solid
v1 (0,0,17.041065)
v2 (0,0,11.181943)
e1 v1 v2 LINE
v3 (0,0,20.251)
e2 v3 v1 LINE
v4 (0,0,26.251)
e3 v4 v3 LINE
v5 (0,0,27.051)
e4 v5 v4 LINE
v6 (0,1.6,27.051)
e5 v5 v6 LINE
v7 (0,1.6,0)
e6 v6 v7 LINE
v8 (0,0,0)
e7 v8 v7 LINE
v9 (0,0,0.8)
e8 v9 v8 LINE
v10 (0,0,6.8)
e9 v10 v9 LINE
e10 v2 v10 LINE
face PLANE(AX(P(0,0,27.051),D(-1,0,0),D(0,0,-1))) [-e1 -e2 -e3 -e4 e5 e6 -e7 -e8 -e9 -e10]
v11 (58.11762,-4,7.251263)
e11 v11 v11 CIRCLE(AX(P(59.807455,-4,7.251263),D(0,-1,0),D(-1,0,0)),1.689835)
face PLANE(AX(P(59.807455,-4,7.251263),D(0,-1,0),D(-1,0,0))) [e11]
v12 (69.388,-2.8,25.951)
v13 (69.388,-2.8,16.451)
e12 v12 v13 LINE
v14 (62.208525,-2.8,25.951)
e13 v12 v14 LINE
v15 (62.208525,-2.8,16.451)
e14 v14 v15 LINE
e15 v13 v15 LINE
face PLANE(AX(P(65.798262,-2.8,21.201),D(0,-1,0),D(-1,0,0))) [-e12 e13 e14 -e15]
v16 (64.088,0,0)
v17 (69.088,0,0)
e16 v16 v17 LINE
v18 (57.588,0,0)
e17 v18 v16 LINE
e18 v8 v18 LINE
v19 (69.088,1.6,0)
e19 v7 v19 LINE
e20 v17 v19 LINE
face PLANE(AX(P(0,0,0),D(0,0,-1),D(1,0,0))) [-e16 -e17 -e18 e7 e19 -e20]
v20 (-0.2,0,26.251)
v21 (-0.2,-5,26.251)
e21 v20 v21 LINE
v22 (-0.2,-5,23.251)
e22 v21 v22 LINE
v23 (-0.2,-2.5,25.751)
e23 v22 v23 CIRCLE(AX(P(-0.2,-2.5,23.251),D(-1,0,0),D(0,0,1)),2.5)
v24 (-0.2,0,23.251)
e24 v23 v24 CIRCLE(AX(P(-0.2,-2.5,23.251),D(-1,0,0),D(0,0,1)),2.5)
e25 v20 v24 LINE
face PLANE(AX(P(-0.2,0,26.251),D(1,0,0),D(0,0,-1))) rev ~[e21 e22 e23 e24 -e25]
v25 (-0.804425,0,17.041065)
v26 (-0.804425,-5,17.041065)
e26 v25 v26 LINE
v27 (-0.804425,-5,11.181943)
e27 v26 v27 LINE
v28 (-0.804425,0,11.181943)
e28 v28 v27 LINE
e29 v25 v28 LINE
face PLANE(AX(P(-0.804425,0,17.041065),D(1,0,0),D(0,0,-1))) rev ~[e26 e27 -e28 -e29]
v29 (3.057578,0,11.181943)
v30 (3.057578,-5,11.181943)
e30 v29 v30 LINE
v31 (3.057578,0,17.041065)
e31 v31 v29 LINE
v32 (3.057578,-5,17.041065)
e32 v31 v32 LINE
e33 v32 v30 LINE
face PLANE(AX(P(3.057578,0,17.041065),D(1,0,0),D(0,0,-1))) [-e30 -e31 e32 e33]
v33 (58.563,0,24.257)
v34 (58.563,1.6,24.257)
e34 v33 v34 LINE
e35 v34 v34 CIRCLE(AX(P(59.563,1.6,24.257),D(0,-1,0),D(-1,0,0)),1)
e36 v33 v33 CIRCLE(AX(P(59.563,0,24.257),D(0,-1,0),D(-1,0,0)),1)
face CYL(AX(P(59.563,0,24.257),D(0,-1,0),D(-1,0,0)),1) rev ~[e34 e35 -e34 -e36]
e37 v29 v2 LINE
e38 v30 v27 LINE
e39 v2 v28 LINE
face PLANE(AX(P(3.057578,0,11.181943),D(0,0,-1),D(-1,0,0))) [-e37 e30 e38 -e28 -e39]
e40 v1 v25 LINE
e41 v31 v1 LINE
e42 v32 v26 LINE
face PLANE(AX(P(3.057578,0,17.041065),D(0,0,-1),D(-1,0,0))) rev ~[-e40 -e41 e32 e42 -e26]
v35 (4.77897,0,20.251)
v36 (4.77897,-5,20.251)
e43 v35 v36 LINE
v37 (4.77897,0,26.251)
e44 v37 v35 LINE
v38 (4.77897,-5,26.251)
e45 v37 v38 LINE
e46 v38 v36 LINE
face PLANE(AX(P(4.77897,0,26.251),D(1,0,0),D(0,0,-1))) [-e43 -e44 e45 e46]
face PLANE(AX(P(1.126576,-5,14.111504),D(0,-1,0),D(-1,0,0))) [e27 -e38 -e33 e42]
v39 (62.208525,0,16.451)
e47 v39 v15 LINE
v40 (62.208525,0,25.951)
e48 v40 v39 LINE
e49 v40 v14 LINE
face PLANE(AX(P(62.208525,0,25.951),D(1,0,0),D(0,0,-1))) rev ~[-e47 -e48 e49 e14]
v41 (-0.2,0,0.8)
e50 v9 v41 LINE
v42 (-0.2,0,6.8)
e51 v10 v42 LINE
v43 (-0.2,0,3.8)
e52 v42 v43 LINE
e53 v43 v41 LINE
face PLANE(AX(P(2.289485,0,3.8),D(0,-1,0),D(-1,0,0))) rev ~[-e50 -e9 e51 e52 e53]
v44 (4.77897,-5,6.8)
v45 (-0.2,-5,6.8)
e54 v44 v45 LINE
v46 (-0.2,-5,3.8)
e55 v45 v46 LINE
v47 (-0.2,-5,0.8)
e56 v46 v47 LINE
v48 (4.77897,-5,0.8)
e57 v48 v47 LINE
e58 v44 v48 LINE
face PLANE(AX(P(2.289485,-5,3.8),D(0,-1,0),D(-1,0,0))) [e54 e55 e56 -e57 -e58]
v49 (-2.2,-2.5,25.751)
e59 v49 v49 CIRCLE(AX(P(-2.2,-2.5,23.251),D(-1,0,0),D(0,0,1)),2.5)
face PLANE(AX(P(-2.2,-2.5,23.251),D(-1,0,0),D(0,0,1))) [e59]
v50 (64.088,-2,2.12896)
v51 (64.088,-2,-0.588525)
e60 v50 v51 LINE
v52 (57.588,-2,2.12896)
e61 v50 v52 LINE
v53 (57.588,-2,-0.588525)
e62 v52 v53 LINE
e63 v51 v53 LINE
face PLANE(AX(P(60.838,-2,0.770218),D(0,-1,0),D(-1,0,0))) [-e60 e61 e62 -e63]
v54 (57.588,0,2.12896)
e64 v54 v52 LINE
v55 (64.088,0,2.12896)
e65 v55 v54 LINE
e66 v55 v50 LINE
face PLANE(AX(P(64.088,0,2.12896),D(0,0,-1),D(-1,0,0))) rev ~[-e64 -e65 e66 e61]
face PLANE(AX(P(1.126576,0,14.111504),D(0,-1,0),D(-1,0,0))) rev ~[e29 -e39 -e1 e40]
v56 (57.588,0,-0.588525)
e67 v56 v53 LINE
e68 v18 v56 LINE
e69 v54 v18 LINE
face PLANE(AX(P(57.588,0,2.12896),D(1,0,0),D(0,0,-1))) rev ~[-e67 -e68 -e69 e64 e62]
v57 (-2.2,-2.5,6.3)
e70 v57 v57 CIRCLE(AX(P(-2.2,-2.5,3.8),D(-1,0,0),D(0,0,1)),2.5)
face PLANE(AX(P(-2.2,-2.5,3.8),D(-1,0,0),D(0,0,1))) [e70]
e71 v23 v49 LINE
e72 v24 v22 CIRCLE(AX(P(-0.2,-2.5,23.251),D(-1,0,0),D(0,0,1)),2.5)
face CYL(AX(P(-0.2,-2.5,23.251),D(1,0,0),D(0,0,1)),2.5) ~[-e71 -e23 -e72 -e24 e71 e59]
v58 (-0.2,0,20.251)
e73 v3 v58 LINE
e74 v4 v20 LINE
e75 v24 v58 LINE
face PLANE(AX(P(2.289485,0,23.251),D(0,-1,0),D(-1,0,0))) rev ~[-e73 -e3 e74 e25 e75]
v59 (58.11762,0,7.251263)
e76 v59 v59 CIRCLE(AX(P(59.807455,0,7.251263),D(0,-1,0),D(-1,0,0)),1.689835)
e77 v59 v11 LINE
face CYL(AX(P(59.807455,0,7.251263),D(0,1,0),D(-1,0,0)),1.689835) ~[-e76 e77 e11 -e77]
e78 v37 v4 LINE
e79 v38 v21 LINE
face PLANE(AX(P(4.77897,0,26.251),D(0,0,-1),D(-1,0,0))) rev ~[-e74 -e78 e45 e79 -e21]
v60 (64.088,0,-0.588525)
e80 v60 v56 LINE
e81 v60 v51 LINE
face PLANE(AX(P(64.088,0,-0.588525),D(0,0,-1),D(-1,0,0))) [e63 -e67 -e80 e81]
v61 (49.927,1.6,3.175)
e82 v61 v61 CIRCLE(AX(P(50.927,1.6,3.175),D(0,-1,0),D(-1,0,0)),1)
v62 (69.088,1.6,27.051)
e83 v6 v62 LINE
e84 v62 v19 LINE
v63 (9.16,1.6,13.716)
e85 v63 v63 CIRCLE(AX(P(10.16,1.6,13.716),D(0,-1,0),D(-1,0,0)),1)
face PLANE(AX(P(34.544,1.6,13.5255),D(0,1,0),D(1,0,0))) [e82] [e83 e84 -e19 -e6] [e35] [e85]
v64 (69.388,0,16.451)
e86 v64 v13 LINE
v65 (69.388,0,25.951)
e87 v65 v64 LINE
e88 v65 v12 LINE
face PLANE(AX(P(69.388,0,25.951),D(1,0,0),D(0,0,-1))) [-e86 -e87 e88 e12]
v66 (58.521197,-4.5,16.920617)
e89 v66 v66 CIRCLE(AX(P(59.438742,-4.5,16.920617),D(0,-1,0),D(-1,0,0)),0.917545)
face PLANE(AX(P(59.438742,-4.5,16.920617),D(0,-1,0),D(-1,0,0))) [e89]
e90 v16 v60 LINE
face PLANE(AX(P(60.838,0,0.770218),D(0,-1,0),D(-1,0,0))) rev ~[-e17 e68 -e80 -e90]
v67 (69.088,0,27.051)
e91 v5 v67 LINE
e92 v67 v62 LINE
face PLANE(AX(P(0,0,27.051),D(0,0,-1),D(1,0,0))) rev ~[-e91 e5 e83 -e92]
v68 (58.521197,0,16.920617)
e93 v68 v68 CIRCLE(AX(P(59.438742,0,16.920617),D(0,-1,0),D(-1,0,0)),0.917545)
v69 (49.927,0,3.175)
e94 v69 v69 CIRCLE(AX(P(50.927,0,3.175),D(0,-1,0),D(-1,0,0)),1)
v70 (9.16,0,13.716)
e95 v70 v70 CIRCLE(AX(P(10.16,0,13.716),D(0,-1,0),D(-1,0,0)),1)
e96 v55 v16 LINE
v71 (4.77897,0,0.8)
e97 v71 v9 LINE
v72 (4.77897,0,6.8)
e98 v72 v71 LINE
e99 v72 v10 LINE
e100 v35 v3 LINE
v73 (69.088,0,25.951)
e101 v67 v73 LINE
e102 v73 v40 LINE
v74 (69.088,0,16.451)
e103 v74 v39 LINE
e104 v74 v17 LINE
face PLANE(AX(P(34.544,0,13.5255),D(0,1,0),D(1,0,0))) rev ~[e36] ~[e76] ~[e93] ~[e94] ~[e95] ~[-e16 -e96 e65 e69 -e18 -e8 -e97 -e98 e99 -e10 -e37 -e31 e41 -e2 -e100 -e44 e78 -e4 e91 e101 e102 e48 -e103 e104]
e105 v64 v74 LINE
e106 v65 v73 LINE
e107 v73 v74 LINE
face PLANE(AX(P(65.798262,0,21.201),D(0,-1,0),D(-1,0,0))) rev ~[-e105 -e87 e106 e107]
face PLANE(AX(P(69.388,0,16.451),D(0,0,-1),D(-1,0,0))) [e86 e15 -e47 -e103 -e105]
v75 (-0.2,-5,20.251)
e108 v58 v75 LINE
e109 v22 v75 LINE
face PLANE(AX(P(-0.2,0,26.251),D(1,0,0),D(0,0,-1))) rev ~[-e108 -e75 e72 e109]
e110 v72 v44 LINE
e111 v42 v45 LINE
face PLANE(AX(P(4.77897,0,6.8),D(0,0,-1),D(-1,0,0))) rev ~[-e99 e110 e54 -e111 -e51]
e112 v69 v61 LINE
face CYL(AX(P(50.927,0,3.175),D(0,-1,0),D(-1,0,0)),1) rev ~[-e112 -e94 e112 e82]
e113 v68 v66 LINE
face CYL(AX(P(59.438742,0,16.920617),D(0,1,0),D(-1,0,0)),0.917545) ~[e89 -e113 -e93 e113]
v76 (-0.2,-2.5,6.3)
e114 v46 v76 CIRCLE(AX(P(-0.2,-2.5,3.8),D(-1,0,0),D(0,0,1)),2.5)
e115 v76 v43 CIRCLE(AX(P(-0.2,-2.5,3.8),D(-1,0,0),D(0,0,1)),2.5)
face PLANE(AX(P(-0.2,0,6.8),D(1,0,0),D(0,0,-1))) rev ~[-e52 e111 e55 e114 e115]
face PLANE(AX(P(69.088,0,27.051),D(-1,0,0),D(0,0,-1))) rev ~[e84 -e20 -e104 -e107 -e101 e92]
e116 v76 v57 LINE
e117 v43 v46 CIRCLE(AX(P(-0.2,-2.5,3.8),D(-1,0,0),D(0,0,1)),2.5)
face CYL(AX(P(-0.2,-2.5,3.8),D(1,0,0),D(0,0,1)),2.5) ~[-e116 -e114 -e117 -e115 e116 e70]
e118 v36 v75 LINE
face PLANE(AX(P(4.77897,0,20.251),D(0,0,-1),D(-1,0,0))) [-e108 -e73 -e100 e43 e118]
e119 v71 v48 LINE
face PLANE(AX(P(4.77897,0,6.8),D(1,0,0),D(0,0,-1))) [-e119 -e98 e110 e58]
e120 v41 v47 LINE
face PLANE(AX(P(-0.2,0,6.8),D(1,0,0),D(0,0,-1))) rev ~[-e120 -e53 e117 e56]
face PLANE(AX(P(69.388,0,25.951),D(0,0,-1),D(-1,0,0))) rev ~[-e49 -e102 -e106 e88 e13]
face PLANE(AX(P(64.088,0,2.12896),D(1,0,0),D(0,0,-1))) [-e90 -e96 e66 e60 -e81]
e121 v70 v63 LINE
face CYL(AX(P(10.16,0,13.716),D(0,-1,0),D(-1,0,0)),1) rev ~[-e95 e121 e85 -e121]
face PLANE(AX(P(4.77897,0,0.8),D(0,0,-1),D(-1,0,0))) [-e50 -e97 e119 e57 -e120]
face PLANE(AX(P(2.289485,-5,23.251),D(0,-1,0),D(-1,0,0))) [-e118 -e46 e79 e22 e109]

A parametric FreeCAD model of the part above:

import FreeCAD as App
import Part
import Sketcher
from FreeCAD import Vector

doc = App.newDocument("Part")
params = doc.addObject("Spreadsheet::Sheet", "Params")
for row, (alias, value) in enumerate([
    ("pad1_length", "1.6 mm"),
    ("sketch2_height", "6 mm"),
    ("pad2_length", "5 mm"),
    ("sketch3_width", "6.5 mm"),
    ("pad3_length", "2 mm"),
    ("sketch4_height", "9.5 mm"),
    ("pad4_length", "2.8 mm"),
    ("sketch5_diameter", "2 mm"),
    ("pad5_length", "4 mm"),
    ("pad6_length", "4.5 mm"),
    ("sketch8_diameter", "5 mm"),
    ("pad7_length", "2 mm"),
], start=1):
    params.set(f"A{row}", alias)
    params.set(f"B{row}", "=" + value)
    params.setAlias(f"B{row}", alias)

body = doc.addObject("PartDesign::Body", "Body")

sketch1 = body.newObject("Sketcher::SketchObject", "Sketch")
sketch1.AttachmentSupport = (doc.getObject("XZ_Plane"), [""])
sketch1.MapMode = "FlatFace"
sketch1.addGeometry([
    Part.LineSegment(Vector(0, 0, 0), Vector(0, 27.051, 0)),
    Part.LineSegment(Vector(0, 27.051, 0), Vector(69.088, 27.051, 0)),
    Part.LineSegment(Vector(69.088, 27.051, 0), Vector(69.088, 0, 0)),
    Part.LineSegment(Vector(69.088, 0, 0), Vector(0, 0, 0)),
], False)
sketch1.addConstraint([
    Sketcher.Constraint("Coincident", 0, 2, 1, 1),
    Sketcher.Constraint("Coincident", 1, 2, 2, 1),
    Sketcher.Constraint("Coincident", 2, 2, 3, 1),
    Sketcher.Constraint("Coincident", 3, 2, 0, 1),
    Sketcher.Constraint("Vertical", 0),
    Sketcher.Constraint("Horizontal", 1),
    Sketcher.Constraint("Vertical", 2),
    Sketcher.Constraint("Horizontal", 3),
    Sketcher.Constraint("Coincident", 3, 2, -1, 1),
    Sketcher.Constraint("DistanceX", 1, 1, 1, 2, 69.088),
    Sketcher.Constraint("DistanceY", 0, 1, 0, 2, 27.051),
])
pad1 = body.newObject("PartDesign::Pad", "Pad")
pad1.Profile = sketch1
pad1.setExpression("Length", "Params.pad1_length")
pad1.Reversed = True

sketch2 = body.newObject("Sketcher::SketchObject", "Sketch001")
sketch2.AttachmentSupport = (doc.getObject("XZ_Plane"), [""])
sketch2.MapMode = "FlatFace"
sketch2.addGeometry([
    Part.LineSegment(Vector(4.77897, 20.251, 0), Vector(4.77897, 26.251, 0)),
    Part.LineSegment(Vector(4.77897, 26.251, 0), Vector(-0.2, 26.251, 0)),
    Part.LineSegment(Vector(-0.2, 26.251, 0), Vector(-0.2, 20.251, 0)),
    Part.LineSegment(Vector(-0.2, 20.251, 0), Vector(4.77897, 20.251, 0)),
    Part.LineSegment(Vector(4.77897, 0.8, 0), Vector(4.77897, 6.8, 0)),
    Part.LineSegment(Vector(4.77897, 6.8, 0), Vector(-0.2, 6.8, 0)),
    Part.LineSegment(Vector(-0.2, 6.8, 0), Vector(-0.2, 0.8, 0)),
    Part.LineSegment(Vector(-0.2, 0.8, 0), Vector(4.77897, 0.8, 0)),
    Part.LineSegment(Vector(3.057578, 11.181943, 0), Vector(3.057578, 17.041065, 0)),
    Part.LineSegment(Vector(3.057578, 17.041065, 0), Vector(-0.804425, 17.041065, 0)),
    Part.LineSegment(Vector(-0.804425, 17.041065, 0), Vector(-0.804425, 11.181943, 0)),
    Part.LineSegment(Vector(-0.804425, 11.181943, 0), Vector(3.057578, 11.181943, 0)),
], False)
sketch2.addConstraint([
    Sketcher.Constraint("Coincident", 0, 2, 1, 1),
    Sketcher.Constraint("Coincident", 1, 2, 2, 1),
    Sketcher.Constraint("Coincident", 2, 2, 3, 1),
    Sketcher.Constraint("Coincident", 3, 2, 0, 1),
    Sketcher.Constraint("Coincident", 4, 2, 5, 1),
    Sketcher.Constraint("Coincident", 5, 2, 6, 1),
    Sketcher.Constraint("Coincident", 6, 2, 7, 1),
    Sketcher.Constraint("Coincident", 7, 2, 4, 1),
    Sketcher.Constraint("Coincident", 8, 2, 9, 1),
    Sketcher.Constraint("Coincident", 9, 2, 10, 1),
    Sketcher.Constraint("Coincident", 10, 2, 11, 1),
    Sketcher.Constraint("Coincident", 11, 2, 8, 1),
    Sketcher.Constraint("Vertical", 0),
    Sketcher.Constraint("Horizontal", 1),
    Sketcher.Constraint("Vertical", 2),
    Sketcher.Constraint("Horizontal", 3),
    Sketcher.Constraint("Vertical", 4),
    Sketcher.Constraint("Horizontal", 5),
    Sketcher.Constraint("Vertical", 6),
    Sketcher.Constraint("Horizontal", 7),
    Sketcher.Constraint("Vertical", 8),
    Sketcher.Constraint("Horizontal", 9),
    Sketcher.Constraint("Vertical", 10),
    Sketcher.Constraint("Horizontal", 11),
    Sketcher.Constraint("Vertical", 3, 2, 4, 2),
    Sketcher.Constraint("Vertical", 2, 2, 5, 2),
    Sketcher.Constraint("Equal", 2, 4),
    Sketcher.Constraint("DistanceY", 0, 1, 0, 2, 6.0),
    Sketcher.Constraint("DistanceX", 1, 2, -1, 1, 0.2),
    Sketcher.Constraint("DistanceY", -1, 1, 4, 2, 6.8),
    Sketcher.Constraint("DistanceY", -1, 1, 0, 2, 26.251),
    Sketcher.Constraint("DistanceX", 1, 2, 1, 1, 4.97897),
    Sketcher.Constraint("DistanceY", 8, 1, 8, 2, 5.859122),
    Sketcher.Constraint("DistanceX", 9, 2, 9, 1, 3.862003),
    Sketcher.Constraint("DistanceX", -1, 1, 8, 2, 3.057578),
    Sketcher.Constraint("DistanceY", -1, 1, 8, 2, 17.041065),
])
sketch2.setExpression("Constraints[27]", "Params.sketch2_height")
pad2 = body.newObject("PartDesign::Pad", "Pad001")
pad2.Profile = sketch2
pad2.setExpression("Length", "Params.pad2_length")

sketch3 = body.newObject("Sketcher::SketchObject", "Sketch002")
sketch3.AttachmentSupport = (doc.getObject("XZ_Plane"), [""])
sketch3.MapMode = "FlatFace"
sketch3.addGeometry([
    Part.LineSegment(Vector(64.088, -0.588525, 0), Vector(64.088, 2.12896, 0)),
    Part.LineSegment(Vector(64.088, 2.12896, 0), Vector(57.588, 2.12896, 0)),
    Part.LineSegment(Vector(57.588, 2.12896, 0), Vector(57.588, -0.588525, 0)),
    Part.LineSegment(Vector(57.588, -0.588525, 0), Vector(64.088, -0.588525, 0)),
], False)
sketch3.addConstraint([
    Sketcher.Constraint("Coincident", 0, 2, 1, 1),
    Sketcher.Constraint("Coincident", 1, 2, 2, 1),
    Sketcher.Constraint("Coincident", 2, 2, 3, 1),
    Sketcher.Constraint("Coincident", 3, 2, 0, 1),
    Sketcher.Constraint("Vertical", 0),
    Sketcher.Constraint("Horizontal", 1),
    Sketcher.Constraint("Vertical", 2),
    Sketcher.Constraint("Horizontal", 3),
    Sketcher.Constraint("DistanceX", 1, 2, 1, 1, 6.5),
    Sketcher.Constraint("DistanceX", -1, 1, 0, 2, 64.088),
    Sketcher.Constraint("DistanceY", 0, 1, 0, 2, 2.717485),
    Sketcher.Constraint("DistanceY", -1, 1, 0, 2, 2.12896),
])
sketch3.setExpression("Constraints[8]", "Params.sketch3_width")
pad3 = body.newObject("PartDesign::Pad", "Pad002")
pad3.Profile = sketch3
pad3.setExpression("Length", "Params.pad3_length")

sketch4 = body.newObject("Sketcher::SketchObject", "Sketch003")
sketch4.AttachmentSupport = (doc.getObject("XZ_Plane"), [""])
sketch4.MapMode = "FlatFace"
sketch4.addGeometry([
    Part.LineSegment(Vector(69.388, 16.451, 0), Vector(69.388, 25.951, 0)),
    Part.LineSegment(Vector(69.388, 25.951, 0), Vector(62.208525, 25.951, 0)),
    Part.LineSegment(Vector(62.208525, 25.951, 0), Vector(62.208525, 16.451, 0)),
    Part.LineSegment(Vector(62.208525, 16.451, 0), Vector(69.388, 16.451, 0)),
], False)
sketch4.addConstraint([
    Sketcher.Constraint("Coincident", 0, 2, 1, 1),
    Sketcher.Constraint("Coincident", 1, 2, 2, 1),
    Sketcher.Constraint("Coincident", 2, 2, 3, 1),
    Sketcher.Constraint("Coincident", 3, 2, 0, 1),
    Sketcher.Constraint("Vertical", 0),
    Sketcher.Constraint("Horizontal", 1),
    Sketcher.Constraint("Vertical", 2),
    Sketcher.Constraint("Horizontal", 3),
    Sketcher.Constraint("DistanceY", 0, 1, 0, 2, 9.5),
    Sketcher.Constraint("DistanceX", -1, 1, 0, 2, 69.388),
    Sketcher.Constraint("DistanceY", -1, 1, 0, 2, 25.951),
    Sketcher.Constraint("DistanceX", 1, 2, 1, 1, 7.179475),
])
sketch4.setExpression("Constraints[8]", "Params.sketch4_height")
pad4 = body.newObject("PartDesign::Pad", "Pad003")
pad4.Profile = sketch4
pad4.setExpression("Length", "Params.pad4_length")

sketch5 = body.newObject("Sketcher::SketchObject", "Sketch004")
sketch5.AttachmentSupport = (doc.getObject("XZ_Plane"), [""])
sketch5.MapMode = "FlatFace"
sketch5.addGeometry([
    Part.Circle(Vector(59.563, 24.257, 0), Vector(0, 0, 1), 1),
    Part.Circle(Vector(50.927, 3.175, 0), Vector(0, 0, 1), 1),
    Part.Circle(Vector(10.16, 13.716, 0), Vector(0, 0, 1), 1),
], False)
sketch5.addConstraint([
    Sketcher.Constraint("Equal", 0, 1),
    Sketcher.Constraint("Equal", 1, 2),
    Sketcher.Constraint("Diameter", 0, 2.0),
    Sketcher.Constraint("DistanceX", -1, 1, 2, 3, 10.16),
    Sketcher.Constraint("DistanceX", -1, 1, 0, 3, 59.563),
    Sketcher.Constraint("DistanceY", -1, 1, 0, 3, 24.257),
    Sketcher.Constraint("DistanceX", -1, 1, 1, 3, 50.927),
    Sketcher.Constraint("DistanceY", -1, 1, 1, 3, 3.175),
    Sketcher.Constraint("DistanceY", -1, 1, 2, 3, 13.716),
])
sketch5.setExpression("Constraints[2]", "Params.sketch5_diameter")
pocket1 = body.newObject("PartDesign::Pocket", "Pocket")
pocket1.Profile = sketch5
pocket1.Type = "ThroughAll"

sketch6 = body.newObject("Sketcher::SketchObject", "Sketch005")
sketch6.AttachmentSupport = (doc.getObject("XZ_Plane"), [""])
sketch6.MapMode = "FlatFace"
sketch6.addGeometry(Part.Circle(Vector(59.807455, 7.251263, 0), Vector(0, 0, 1), 1.689835), False)
sketch6.addConstraint([
    Sketcher.Constraint("Diameter", 0, 3.379669),
    Sketcher.Constraint("DistanceX", -1, 1, 0, 3, 59.807455),
    Sketcher.Constraint("DistanceY", -1, 1, 0, 3, 7.251263),
])
pad5 = body.newObject("PartDesign::Pad", "Pad004")
pad5.Profile = sketch6
pad5.setExpression("Length", "Params.pad5_length")

sketch7 = body.newObject("Sketcher::SketchObject", "Sketch006")
sketch7.AttachmentSupport = (doc.getObject("XZ_Plane"), [""])
sketch7.MapMode = "FlatFace"
sketch7.addGeometry(Part.Circle(Vector(59.438742, 16.920617, 0), Vector(0, 0, 1), 0.917545), False)
sketch7.addConstraint([
    Sketcher.Constraint("Diameter", 0, 1.835091),
    Sketcher.Constraint("DistanceX", -1, 1, 0, 3, 59.438742),
    Sketcher.Constraint("DistanceY", -1, 1, 0, 3, 16.920617),
])
pad6 = body.newObject("PartDesign::Pad", "Pad005")
pad6.Profile = sketch7
pad6.setExpression("Length", "Params.pad6_length")

sketch8 = body.newObject("Sketcher::SketchObject", "Sketch007")
sketch8.AttachmentSupport = (doc.getObject("YZ_Plane"), [""])
sketch8.MapMode = "FlatFace"
sketch8.AttachmentOffset = App.Placement(Vector(0, 0, -0.2), App.Rotation())
sketch8.addGeometry([
    Part.Circle(Vector(-2.5, 3.8, 0), Vector(0, 0, 1), 2.5),
    Part.Circle(Vector(-2.5, 23.251, 0), Vector(0, 0, 1), 2.5),
], False)
sketch8.addConstraint([
    Sketcher.Constraint("Equal", 0, 1),
    Sketcher.Constraint("Vertical", 0, 3, 1, 3),
    Sketcher.Constraint("Diameter", 0, 5.0),
    Sketcher.Constraint("DistanceX", 0, 3, -1, 1, 2.5),
    Sketcher.Constraint("DistanceY", -1, 1, 0, 3, 3.8),
    Sketcher.Constraint("DistanceY", -1, 1, 1, 3, 23.251),
])
sketch8.setExpression("Constraints[2]", "Params.sketch8_diameter")
pad7 = body.newObject("PartDesign::Pad", "Pad006")
pad7.Profile = sketch8
pad7.setExpression("Length", "Params.pad7_length")
pad7.Reversed = True

doc.recompute()
